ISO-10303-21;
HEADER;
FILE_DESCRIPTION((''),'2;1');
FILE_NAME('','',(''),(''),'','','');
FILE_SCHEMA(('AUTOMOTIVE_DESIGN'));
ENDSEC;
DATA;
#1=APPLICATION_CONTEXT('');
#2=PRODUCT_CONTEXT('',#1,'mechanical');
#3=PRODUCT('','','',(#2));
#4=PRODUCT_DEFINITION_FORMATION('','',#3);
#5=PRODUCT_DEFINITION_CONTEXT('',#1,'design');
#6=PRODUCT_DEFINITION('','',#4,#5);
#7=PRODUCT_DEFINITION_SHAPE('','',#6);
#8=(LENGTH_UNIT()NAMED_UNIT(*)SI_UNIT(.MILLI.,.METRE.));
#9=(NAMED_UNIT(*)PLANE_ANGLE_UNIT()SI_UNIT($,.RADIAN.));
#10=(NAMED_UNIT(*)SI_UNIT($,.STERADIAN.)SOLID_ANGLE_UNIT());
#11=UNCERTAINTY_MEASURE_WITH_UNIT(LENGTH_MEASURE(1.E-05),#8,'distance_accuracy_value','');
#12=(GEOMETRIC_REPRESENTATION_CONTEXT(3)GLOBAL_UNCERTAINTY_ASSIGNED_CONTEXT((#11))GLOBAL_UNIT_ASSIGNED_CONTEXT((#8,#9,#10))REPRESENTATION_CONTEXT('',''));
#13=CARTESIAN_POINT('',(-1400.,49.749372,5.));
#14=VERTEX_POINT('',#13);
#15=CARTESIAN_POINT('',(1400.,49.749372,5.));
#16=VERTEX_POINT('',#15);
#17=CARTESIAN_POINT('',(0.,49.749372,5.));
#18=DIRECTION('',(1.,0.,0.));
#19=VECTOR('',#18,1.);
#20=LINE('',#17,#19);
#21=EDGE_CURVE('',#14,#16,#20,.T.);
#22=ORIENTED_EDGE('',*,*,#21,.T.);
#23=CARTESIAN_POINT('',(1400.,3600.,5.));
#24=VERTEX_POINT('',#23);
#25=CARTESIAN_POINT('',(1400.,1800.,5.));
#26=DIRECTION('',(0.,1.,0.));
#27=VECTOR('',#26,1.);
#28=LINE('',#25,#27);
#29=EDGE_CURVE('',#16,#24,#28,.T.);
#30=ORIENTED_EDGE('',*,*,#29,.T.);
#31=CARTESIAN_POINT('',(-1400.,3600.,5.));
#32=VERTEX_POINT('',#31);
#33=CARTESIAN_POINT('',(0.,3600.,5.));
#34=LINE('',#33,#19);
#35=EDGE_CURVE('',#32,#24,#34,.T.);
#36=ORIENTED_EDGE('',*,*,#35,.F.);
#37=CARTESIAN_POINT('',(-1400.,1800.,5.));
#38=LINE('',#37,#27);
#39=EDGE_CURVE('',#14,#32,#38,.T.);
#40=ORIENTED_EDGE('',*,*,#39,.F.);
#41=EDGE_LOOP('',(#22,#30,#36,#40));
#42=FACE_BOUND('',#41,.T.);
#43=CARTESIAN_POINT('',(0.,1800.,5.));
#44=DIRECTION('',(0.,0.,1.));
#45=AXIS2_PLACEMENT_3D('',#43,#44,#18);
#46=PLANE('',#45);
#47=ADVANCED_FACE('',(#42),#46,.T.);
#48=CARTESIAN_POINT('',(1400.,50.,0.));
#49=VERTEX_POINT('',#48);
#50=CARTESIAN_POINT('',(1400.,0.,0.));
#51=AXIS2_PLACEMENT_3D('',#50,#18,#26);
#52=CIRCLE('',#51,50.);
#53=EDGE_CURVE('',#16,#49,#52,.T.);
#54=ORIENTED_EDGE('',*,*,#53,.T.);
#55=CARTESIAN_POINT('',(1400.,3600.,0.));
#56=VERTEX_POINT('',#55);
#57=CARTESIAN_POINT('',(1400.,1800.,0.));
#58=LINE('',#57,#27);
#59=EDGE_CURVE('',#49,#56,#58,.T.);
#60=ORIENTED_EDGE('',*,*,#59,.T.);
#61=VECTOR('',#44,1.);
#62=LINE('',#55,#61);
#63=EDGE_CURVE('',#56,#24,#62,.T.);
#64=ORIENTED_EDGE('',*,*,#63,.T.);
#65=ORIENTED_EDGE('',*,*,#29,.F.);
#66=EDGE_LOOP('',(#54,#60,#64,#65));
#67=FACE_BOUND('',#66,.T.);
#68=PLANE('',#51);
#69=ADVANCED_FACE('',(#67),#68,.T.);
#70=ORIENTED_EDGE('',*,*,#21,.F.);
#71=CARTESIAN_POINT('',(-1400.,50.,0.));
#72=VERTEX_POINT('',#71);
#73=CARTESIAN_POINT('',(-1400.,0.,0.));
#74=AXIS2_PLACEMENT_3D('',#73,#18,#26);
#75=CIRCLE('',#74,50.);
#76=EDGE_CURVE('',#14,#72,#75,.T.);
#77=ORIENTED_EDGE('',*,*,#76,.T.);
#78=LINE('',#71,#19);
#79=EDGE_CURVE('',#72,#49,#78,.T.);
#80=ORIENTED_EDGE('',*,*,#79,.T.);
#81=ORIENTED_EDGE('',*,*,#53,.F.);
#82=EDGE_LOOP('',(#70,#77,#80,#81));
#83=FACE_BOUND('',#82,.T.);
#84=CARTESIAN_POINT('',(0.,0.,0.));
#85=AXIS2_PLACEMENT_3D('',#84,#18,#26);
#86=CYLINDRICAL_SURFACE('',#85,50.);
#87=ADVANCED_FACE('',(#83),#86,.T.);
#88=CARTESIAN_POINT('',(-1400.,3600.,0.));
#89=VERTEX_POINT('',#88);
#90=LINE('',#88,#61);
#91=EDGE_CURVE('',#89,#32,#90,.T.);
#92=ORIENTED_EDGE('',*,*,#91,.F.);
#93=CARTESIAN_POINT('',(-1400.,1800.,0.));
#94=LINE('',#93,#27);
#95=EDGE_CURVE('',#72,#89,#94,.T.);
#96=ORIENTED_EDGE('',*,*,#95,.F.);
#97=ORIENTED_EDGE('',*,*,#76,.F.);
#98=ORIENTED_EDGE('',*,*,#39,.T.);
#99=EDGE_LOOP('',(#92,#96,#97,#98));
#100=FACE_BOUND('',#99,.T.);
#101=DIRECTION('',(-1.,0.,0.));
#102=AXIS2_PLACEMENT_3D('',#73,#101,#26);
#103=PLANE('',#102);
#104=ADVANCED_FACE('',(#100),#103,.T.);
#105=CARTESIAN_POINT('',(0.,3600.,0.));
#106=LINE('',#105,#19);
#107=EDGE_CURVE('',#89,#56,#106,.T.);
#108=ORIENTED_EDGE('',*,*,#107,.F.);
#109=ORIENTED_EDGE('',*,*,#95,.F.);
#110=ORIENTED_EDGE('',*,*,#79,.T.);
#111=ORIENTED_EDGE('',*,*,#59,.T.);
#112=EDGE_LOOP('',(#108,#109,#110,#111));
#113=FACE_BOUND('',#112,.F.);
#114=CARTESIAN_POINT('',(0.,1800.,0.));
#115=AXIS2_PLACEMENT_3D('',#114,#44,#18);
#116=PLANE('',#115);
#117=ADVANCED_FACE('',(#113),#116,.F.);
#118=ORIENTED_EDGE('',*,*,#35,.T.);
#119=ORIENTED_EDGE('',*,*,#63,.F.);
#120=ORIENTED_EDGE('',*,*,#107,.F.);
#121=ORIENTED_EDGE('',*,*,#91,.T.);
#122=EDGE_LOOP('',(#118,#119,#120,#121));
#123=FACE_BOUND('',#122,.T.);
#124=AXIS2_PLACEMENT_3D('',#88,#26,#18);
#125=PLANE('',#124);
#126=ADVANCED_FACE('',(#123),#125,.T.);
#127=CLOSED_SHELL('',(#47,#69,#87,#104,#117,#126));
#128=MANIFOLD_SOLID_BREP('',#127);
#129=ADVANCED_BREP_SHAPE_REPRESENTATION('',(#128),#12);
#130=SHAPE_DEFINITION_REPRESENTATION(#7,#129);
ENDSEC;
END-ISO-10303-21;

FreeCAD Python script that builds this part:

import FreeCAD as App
import Part
import Sketcher

doc = App.newDocument("Part")
body = doc.addObject("PartDesign::Body", "Body")

# Sketch on XY plane
sketch1 = body.newObject("Sketcher::SketchObject", "Sketch")
sketch1.AttachmentSupport = (doc.getObject("XY_Plane"), [""])
sketch1.MapMode = "FlatFace"
sketch1.addGeometry([
    Part.LineSegment(App.Vector(-1400, 3600, 0), App.Vector(-1400, 0, 0)),
    Part.LineSegment(App.Vector(-1400, 0, 0), App.Vector(1400, 0, 0)),
    Part.LineSegment(App.Vector(1400, 0, 0), App.Vector(1400, 3600, 0)),
    Part.LineSegment(App.Vector(1400, 3600, 0), App.Vector(-1400, 3600, 0)),
], False)
sketch1.addConstraint([
    Sketcher.Constraint("Coincident", 0, 2, 1, 1),
    Sketcher.Constraint("Coincident", 1, 2, 2, 1),
    Sketcher.Constraint("Coincident", 2, 2, 3, 1),
    Sketcher.Constraint("Coincident", 3, 2, 0, 1),
    Sketcher.Constraint("Vertical", 0),
    Sketcher.Constraint("Horizontal", 1),
    Sketcher.Constraint("Vertical", 2),
    Sketcher.Constraint("Horizontal", 3),
    Sketcher.Constraint("Symmetric", 0, 2, 1, 2, -1, 1),
    Sketcher.Constraint("DistanceX", 1, 1, 1, 2, 2800.0),
    Sketcher.Constraint("DistanceY", 0, 2, 0, 1, 3600.0),
])
pad1 = body.newObject("PartDesign::Pad", "Pad")
pad1.Profile = sketch1
pad1.Length = 5

# Sketch on YZ plane
sketch2 = body.newObject("Sketcher::SketchObject", "Sketch001")
sketch2.AttachmentSupport = (doc.getObject("YZ_Plane"), [""])
sketch2.MapMode = "FlatFace"
sketch2.addGeometry(Part.Circle(App.Vector(0, 0, 0), App.Vector(0, 0, 1), 50), False)
sketch2.addConstraint([
    Sketcher.Constraint("Coincident", 0, 3, -1, 1),
    Sketcher.Constraint("Diameter", 0, 100.0),
])
pad2 = body.newObject("PartDesign::Pad", "Pad001")
pad2.Profile = sketch2
pad2.Length = 2800
pad2.Midplane = True

doc.recompute()
